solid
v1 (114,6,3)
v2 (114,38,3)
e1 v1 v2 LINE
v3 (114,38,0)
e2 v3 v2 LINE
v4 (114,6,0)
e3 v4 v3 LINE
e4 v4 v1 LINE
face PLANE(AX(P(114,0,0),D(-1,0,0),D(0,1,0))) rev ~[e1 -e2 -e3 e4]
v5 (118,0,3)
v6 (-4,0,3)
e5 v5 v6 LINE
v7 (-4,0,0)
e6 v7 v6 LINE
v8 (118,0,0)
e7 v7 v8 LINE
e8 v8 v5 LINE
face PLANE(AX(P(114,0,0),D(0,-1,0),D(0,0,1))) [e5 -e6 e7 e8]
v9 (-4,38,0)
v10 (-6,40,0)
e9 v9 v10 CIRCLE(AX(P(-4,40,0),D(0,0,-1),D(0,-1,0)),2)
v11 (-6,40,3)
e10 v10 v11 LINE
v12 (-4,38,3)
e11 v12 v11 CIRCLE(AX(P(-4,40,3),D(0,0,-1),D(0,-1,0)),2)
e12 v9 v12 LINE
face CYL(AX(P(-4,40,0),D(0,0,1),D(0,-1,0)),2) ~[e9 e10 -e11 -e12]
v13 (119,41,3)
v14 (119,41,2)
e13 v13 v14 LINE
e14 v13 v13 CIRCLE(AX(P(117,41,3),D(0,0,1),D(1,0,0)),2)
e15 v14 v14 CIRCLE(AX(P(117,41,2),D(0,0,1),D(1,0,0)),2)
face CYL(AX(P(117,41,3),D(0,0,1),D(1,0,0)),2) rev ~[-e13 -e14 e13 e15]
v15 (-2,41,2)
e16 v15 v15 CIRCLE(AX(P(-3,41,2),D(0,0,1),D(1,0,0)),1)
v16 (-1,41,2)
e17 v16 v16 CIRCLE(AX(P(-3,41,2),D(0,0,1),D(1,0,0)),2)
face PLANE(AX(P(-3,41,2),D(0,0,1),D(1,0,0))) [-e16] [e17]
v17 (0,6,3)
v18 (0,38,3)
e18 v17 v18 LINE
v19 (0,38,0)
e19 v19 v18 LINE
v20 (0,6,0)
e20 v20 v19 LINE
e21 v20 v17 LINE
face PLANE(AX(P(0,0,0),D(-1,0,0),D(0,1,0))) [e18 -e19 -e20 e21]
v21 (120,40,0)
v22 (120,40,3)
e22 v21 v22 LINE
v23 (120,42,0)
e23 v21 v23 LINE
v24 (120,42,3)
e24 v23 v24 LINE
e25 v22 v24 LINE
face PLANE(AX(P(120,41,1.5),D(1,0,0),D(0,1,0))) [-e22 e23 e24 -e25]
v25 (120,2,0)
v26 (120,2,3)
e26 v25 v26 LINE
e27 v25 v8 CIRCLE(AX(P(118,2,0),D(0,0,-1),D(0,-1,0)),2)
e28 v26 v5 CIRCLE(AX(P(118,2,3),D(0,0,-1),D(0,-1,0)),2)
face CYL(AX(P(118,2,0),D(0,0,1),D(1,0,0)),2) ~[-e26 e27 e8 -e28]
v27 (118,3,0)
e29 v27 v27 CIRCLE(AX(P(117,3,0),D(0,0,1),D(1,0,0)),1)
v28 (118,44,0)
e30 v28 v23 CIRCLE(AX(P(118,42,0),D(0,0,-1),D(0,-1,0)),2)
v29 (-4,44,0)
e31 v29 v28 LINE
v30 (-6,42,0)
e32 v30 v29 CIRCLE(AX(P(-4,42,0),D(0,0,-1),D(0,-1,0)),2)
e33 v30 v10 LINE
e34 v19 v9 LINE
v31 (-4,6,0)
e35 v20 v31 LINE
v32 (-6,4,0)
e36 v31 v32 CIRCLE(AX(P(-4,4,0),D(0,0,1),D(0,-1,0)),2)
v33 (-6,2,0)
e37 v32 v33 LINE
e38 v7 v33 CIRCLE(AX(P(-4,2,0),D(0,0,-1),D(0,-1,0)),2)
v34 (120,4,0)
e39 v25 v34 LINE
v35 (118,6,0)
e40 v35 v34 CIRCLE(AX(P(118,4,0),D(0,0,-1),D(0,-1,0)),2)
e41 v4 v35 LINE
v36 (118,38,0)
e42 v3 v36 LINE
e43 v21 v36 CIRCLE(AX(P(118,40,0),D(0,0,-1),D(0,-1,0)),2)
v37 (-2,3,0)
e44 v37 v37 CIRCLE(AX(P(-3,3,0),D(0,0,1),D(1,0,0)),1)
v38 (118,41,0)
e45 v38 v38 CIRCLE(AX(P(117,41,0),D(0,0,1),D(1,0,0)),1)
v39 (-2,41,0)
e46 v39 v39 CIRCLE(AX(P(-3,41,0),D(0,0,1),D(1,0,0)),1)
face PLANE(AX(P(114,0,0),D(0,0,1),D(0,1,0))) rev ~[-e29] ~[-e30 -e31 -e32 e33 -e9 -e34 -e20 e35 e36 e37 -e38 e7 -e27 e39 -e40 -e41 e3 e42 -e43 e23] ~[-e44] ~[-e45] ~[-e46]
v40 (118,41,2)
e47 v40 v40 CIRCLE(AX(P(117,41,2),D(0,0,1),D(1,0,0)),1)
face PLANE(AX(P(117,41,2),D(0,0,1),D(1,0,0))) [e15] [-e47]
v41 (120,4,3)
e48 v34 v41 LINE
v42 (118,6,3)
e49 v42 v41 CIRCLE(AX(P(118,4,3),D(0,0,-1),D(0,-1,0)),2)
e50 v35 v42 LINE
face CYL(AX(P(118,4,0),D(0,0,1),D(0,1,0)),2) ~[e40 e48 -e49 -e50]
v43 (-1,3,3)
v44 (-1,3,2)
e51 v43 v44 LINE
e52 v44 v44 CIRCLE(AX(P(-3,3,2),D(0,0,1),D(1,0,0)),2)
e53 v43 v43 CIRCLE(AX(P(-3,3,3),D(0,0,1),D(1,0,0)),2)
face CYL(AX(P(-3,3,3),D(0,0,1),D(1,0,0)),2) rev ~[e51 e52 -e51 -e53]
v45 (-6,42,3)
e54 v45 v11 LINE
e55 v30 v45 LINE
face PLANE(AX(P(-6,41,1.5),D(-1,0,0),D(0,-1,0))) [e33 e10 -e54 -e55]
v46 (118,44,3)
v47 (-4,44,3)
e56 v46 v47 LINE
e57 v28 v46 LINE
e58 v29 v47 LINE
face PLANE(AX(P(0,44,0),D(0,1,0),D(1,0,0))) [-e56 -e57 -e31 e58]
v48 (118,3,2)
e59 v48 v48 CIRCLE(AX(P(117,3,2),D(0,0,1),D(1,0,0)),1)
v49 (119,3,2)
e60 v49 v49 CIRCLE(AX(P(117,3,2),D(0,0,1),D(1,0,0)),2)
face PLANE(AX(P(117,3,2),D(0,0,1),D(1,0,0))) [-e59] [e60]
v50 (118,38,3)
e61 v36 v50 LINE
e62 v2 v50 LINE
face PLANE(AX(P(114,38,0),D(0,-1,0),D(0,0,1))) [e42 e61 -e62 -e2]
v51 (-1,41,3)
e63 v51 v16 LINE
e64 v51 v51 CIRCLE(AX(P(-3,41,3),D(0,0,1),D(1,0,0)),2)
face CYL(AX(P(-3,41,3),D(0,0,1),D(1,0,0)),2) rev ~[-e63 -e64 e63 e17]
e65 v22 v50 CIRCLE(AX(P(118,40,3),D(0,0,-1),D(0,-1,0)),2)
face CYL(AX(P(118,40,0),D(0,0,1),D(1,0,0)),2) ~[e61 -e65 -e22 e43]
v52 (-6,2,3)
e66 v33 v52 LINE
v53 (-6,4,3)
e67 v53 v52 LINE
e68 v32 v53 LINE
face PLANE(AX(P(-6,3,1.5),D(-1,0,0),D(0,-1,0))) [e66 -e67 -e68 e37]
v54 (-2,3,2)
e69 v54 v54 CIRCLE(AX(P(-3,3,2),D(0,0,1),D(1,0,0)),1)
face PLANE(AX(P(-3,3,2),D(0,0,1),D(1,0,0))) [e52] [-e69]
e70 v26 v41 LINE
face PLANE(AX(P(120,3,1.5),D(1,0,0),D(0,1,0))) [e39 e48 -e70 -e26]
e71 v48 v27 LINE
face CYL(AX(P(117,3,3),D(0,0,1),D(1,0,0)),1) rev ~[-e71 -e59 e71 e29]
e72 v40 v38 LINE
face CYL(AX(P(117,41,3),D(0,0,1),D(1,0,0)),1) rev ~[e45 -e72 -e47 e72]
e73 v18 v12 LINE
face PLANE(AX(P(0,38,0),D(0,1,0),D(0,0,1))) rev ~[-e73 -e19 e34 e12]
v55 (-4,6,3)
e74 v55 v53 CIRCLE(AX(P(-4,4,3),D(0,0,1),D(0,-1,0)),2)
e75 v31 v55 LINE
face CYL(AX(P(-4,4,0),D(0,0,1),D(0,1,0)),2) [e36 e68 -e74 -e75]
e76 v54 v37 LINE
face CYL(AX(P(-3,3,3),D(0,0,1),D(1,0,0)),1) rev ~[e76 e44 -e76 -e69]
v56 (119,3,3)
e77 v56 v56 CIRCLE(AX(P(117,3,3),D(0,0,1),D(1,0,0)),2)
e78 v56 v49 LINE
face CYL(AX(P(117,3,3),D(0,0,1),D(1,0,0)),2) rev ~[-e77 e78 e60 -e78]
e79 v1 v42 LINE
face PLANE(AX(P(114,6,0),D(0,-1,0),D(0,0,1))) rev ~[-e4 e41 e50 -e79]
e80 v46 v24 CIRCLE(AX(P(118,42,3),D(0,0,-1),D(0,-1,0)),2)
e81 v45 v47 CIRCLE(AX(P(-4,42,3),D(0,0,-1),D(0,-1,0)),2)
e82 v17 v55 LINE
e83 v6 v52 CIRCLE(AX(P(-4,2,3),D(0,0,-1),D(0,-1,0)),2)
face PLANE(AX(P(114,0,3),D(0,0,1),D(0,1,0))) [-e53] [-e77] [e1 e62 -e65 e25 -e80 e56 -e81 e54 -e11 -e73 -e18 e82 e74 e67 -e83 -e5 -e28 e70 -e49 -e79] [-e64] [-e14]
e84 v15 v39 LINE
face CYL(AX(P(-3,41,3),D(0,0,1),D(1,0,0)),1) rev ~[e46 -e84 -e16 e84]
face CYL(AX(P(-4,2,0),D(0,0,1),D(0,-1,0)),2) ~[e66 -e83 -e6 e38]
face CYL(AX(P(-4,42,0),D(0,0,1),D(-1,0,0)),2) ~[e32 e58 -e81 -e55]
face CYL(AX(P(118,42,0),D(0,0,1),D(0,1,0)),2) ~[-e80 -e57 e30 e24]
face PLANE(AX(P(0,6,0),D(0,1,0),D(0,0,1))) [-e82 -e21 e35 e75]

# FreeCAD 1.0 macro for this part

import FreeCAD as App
import Part
import Sketcher
from FreeCAD import Vector


def edges_at(feature, points):
    """Names of the edges that pass closest to the given points."""
    edges = feature.Shape.Edges
    near = lambda p: min(range(len(edges)), key=lambda i: edges[i].distToShape(Part.Vertex(*p))[0])
    return sorted({f"Edge{near(p) + 1}" for p in points})

doc = App.newDocument("Part")
body = doc.addObject("PartDesign::Body", "Body")

# Sketch on XY plane
sketch1 = body.newObject("Sketcher::SketchObject", "Sketch")
sketch1.AttachmentSupport = (doc.getObject("XY_Plane"), [""])
sketch1.MapMode = "FlatFace"
sketch1.addGeometry(Part.LineSegment(Vector(0, 44, 0), Vector(0, 0, 0)), False)
sketch1.addGeometry(Part.LineSegment(Vector(0, 0, 0), Vector(114, 0, 0)), False)
sketch1.addGeometry(Part.LineSegment(Vector(114, 0, 0), Vector(114, 44, 0)), False)
sketch1.addGeometry(Part.LineSegment(Vector(114, 44, 0), Vector(0, 44, 0)), False)
sketch1.addConstraint(Sketcher.Constraint("Coincident", 0, 2, 1, 1))
sketch1.addConstraint(Sketcher.Constraint("Coincident", 1, 2, 2, 1))
sketch1.addConstraint(Sketcher.Constraint("Coincident", 2, 2, 3, 1))
sketch1.addConstraint(Sketcher.Constraint("Coincident", 3, 2, 0, 1))
sketch1.addConstraint(Sketcher.Constraint("Vertical", 0))
sketch1.addConstraint(Sketcher.Constraint("Horizontal", 1))
sketch1.addConstraint(Sketcher.Constraint("Vertical", 2))
sketch1.addConstraint(Sketcher.Constraint("Horizontal", 3))
sketch1.addConstraint(Sketcher.Constraint("Coincident", 0, 2, -1, 1))
sketch1.addConstraint(Sketcher.Constraint("DistanceX", 1, 1, 1, 2, 114.0))
sketch1.addConstraint(Sketcher.Constraint("DistanceY", 0, 2, 0, 1, 44.0))
pad1 = body.newObject("PartDesign::Pad", "Pad")
pad1.Profile = sketch1
pad1.Length = 3

# Sketch on YZ plane
sketch2 = body.newObject("Sketcher::SketchObject", "Sketch001")
sketch2.AttachmentSupport = (doc.getObject("YZ_Plane"), [""])
sketch2.MapMode = "FlatFace"
sketch2.addGeometry(Part.LineSegment(Vector(6, 3, 0), Vector(6, 0, 0)), False)
sketch2.addGeometry(Part.LineSegment(Vector(6, 0, 0), Vector(0, 0, 0)), False)
sketch2.addGeometry(Part.LineSegment(Vector(0, 0, 0), Vector(0, 3, 0)), False)
sketch2.addGeometry(Part.LineSegment(Vector(0, 3, 0), Vector(6, 3, 0)), False)
sketch2.addGeometry(Part.LineSegment(Vector(44, 3, 0), Vector(44, 0, 0)), False)
sketch2.addGeometry(Part.LineSegment(Vector(44, 0, 0), Vector(38, 0, 0)), False)
sketch2.addGeometry(Part.LineSegment(Vector(38, 0, 0), Vector(38, 3, 0)), False)
sketch2.addGeometry(Part.LineSegment(Vector(38, 3, 0), Vector(44, 3, 0)), False)
sketch2.addConstraint(Sketcher.Constraint("Coincident", 0, 2, 1, 1))
sketch2.addConstraint(Sketcher.Constraint("Coincident", 1, 2, 2, 1))
sketch2.addConstraint(Sketcher.Constraint("Coincident", 2, 2, 3, 1))
sketch2.addConstraint(Sketcher.Constraint("Coincident", 3, 2, 0, 1))
sketch2.addConstraint(Sketcher.Constraint("Coincident", 4, 2, 5, 1))
sketch2.addConstraint(Sketcher.Constraint("Coincident", 5, 2, 6, 1))
sketch2.addConstraint(Sketcher.Constraint("Coincident", 6, 2, 7, 1))
sketch2.addConstraint(Sketcher.Constraint("Coincident", 7, 2, 4, 1))
sketch2.addConstraint(Sketcher.Constraint("Vertical", 0))
sketch2.addConstraint(Sketcher.Constraint("Horizontal", 1))
sketch2.addConstraint(Sketcher.Constraint("Vertical", 2))
sketch2.addConstraint(Sketcher.Constraint("Horizontal", 3))
sketch2.addConstraint(Sketcher.Constraint("Vertical", 4))
sketch2.addConstraint(Sketcher.Constraint("Horizontal", 5))
sketch2.addConstraint(Sketcher.Constraint("Vertical", 6))
sketch2.addConstraint(Sketcher.Constraint("Horizontal", 7))
sketch2.addConstraint(Sketcher.Constraint("Coincident", 1, 2, -1, 1))
sketch2.addConstraint(Sketcher.Constraint("PointOnObject", 4, 2, -1))
sketch2.addConstraint(Sketcher.Constraint("Horizontal", 3, 2, 6, 2))
sketch2.addConstraint(Sketcher.Constraint("Equal", 3, 5))
sketch2.addConstraint(Sketcher.Constraint("DistanceX", 1, 2, 1, 1, 6.0))
sketch2.addConstraint(Sketcher.Constraint("DistanceY", 0, 2, 0, 1, 3.0))
sketch2.addConstraint(Sketcher.Constraint("DistanceX", -1, 1, 4, 2, 44.0))
pad2 = body.newObject("PartDesign::Pad", "Pad001")
pad2.Profile = sketch2
pad2.Length = 6
pad2.Reversed = True

# Sketch on YZ plane
sketch3 = body.newObject("Sketcher::SketchObject", "Sketch002")
sketch3.AttachmentSupport = (doc.getObject("YZ_Plane"), [""])
sketch3.MapMode = "FlatFace"
sketch3.AttachmentOffset = App.Placement(Vector(0, 0, 114), App.Rotation())
sketch3.addGeometry(Part.LineSegment(Vector(0, 3, 0), Vector(0, 0, 0)), False)
sketch3.addGeometry(Part.LineSegment(Vector(0, 0, 0), Vector(6, 0, 0)), False)
sketch3.addGeometry(Part.LineSegment(Vector(6, 0, 0), Vector(6, 3, 0)), False)
sketch3.addGeometry(Part.LineSegment(Vector(6, 3, 0), Vector(0, 3, 0)), False)
sketch3.addGeometry(Part.LineSegment(Vector(38, 3, 0), Vector(38, 0, 0)), False)
sketch3.addGeometry(Part.LineSegment(Vector(38, 0, 0), Vector(44, 0, 0)), False)
sketch3.addGeometry(Part.LineSegment(Vector(44, 0, 0), Vector(44, 3, 0)), False)
sketch3.addGeometry(Part.LineSegment(Vector(44, 3, 0), Vector(38, 3, 0)), False)
sketch3.addConstraint(Sketcher.Constraint("Coincident", 0, 2, 1, 1))
sketch3.addConstraint(Sketcher.Constraint("Coincident", 1, 2, 2, 1))
sketch3.addConstraint(Sketcher.Constraint("Coincident", 2, 2, 3, 1))
sketch3.addConstraint(Sketcher.Constraint("Coincident", 3, 2, 0, 1))
sketch3.addConstraint(Sketcher.Constraint("Coincident", 4, 2, 5, 1))
sketch3.addConstraint(Sketcher.Constraint("Coincident", 5, 2, 6, 1))
sketch3.addConstraint(Sketcher.Constraint("Coincident", 6, 2, 7, 1))
sketch3.addConstraint(Sketcher.Constraint("Coincident", 7, 2, 4, 1))
sketch3.addConstraint(Sketcher.Constraint("Vertical", 0))
sketch3.addConstraint(Sketcher.Constraint("Horizontal", 1))
sketch3.addConstraint(Sketcher.Constraint("Vertical", 2))
sketch3.addConstraint(Sketcher.Constraint("Horizontal", 3))
sketch3.addConstraint(Sketcher.Constraint("Vertical", 4))
sketch3.addConstraint(Sketcher.Constraint("Horizontal", 5))
sketch3.addConstraint(Sketcher.Constraint("Vertical", 6))
sketch3.addConstraint(Sketcher.Constraint("Horizontal", 7))
sketch3.addConstraint(Sketcher.Constraint("Coincident", 0, 2, -1, 1))
sketch3.addConstraint(Sketcher.Constraint("PointOnObject", 4, 2, -1))
sketch3.addConstraint(Sketcher.Constraint("Horizontal", 3, 2, 6, 2))
sketch3.addConstraint(Sketcher.Constraint("Equal", 3, 5))
sketch3.addConstraint(Sketcher.Constraint("DistanceX", 1, 1, 1, 2, 6.0))
sketch3.addConstraint(Sketcher.Constraint("DistanceY", 0, 2, 0, 1, 3.0))
sketch3.addConstraint(Sketcher.Constraint("DistanceX", -1, 1, 4, 2, 38.0))
pad3 = body.newObject("PartDesign::Pad", "Pad002")
pad3.Profile = sketch3
pad3.Length = 6

# Sketch on XY plane
sketch4 = body.newObject("Sketcher::SketchObject", "Sketch003")
sketch4.AttachmentSupport = (doc.getObject("XY_Plane"), [""])
sketch4.MapMode = "FlatFace"
sketch4.AttachmentOffset = App.Placement(Vector(0, 0, 3), App.Rotation())
sketch4.addGeometry(Part.Circle(Vector(-3, 3, 0), Vector(0, 0, 1), 1), False)
sketch4.addGeometry(Part.Circle(Vector(-3, 41, 0), Vector(0, 0, 1), 1), False)
sketch4.addGeometry(Part.Circle(Vector(117, 41, 0), Vector(0, 0, 1), 1), False)
sketch4.addGeometry(Part.Circle(Vector(117, 3, 0), Vector(0, 0, 1), 1), False)
sketch4.addConstraint(Sketcher.Constraint("Equal", 0, 1))
sketch4.addConstraint(Sketcher.Constraint("Equal", 1, 2))
sketch4.addConstraint(Sketcher.Constraint("Equal", 2, 3))
sketch4.addConstraint(Sketcher.Constraint("Horizontal", 1, 3, 2, 3))
sketch4.addConstraint(Sketcher.Constraint("Horizontal", 0, 3, 3, 3))
sketch4.addConstraint(Sketcher.Constraint("Vertical", 0, 3, 1, 3))
sketch4.addConstraint(Sketcher.Constraint("Vertical", 2, 3, 3, 3))
sketch4.addConstraint(Sketcher.Constraint("Diameter", 0, 2.0))
sketch4.addConstraint(Sketcher.Constraint("DistanceX", 0, 3, -1, 1, 3.0))
sketch4.addConstraint(Sketcher.Constraint("DistanceY", -1, 1, 0, 3, 3.0))
sketch4.addConstraint(Sketcher.Constraint("DistanceY", -1, 1, 1, 3, 41.0))
sketch4.addConstraint(Sketcher.Constraint("DistanceX", -1, 1, 2, 3, 117.0))
pocket1 = body.newObject("PartDesign::Pocket", "Pocket")
pocket1.Profile = sketch4
pocket1.Length = 5

# Sketch on XY plane
sketch5 = body.newObject("Sketcher::SketchObject", "Sketch004")
sketch5.AttachmentSupport = (doc.getObject("XY_Plane"), [""])
sketch5.MapMode = "FlatFace"
sketch5.AttachmentOffset = App.Placement(Vector(0, 0, 3), App.Rotation())
sketch5.addGeometry(Part.Circle(Vector(-3, 41, 0), Vector(0, 0, 1), 2), False)
sketch5.addGeometry(Part.Circle(Vector(-3, 3, 0), Vector(0, 0, 1), 2), False)
sketch5.addGeometry(Part.Circle(Vector(117, 41, 0), Vector(0, 0, 1), 2), False)
sketch5.addGeometry(Part.Circle(Vector(117, 3, 0), Vector(0, 0, 1), 2), False)
sketch5.addConstraint(Sketcher.Constraint("Equal", 0, 1))
sketch5.addConstraint(Sketcher.Constraint("Equal", 1, 2))
sketch5.addConstraint(Sketcher.Constraint("Equal", 2, 3))
sketch5.addConstraint(Sketcher.Constraint("Horizontal", 0, 3, 2, 3))
sketch5.addConstraint(Sketcher.Constraint("Horizontal", 1, 3, 3, 3))
sketch5.addConstraint(Sketcher.Constraint("Vertical", 0, 3, 1, 3))
sketch5.addConstraint(Sketcher.Constraint("Vertical", 2, 3, 3, 3))
sketch5.addConstraint(Sketcher.Constraint("Diameter", 0, 4.0))
sketch5.addConstraint(Sketcher.Constraint("DistanceX", 0, 3, -1, 1, 3.0))
sketch5.addConstraint(Sketcher.Constraint("DistanceY", -1, 1, 0, 3, 41.0))
sketch5.addConstraint(Sketcher.Constraint("DistanceY", -1, 1, 1, 3, 3.0))
sketch5.addConstraint(Sketcher.Constraint("DistanceX", -1, 1, 2, 3, 117.0))
pocket2 = body.newObject("PartDesign::Pocket", "Pocket001")
pocket2.Profile = sketch5
pocket2.Length = 1
doc.recompute()

fillet = body.newObject("PartDesign::Fillet", "Fillet")
fillet.Base = (pocket2, edges_at(pocket2, [(-6, 0, 1.5)]))
fillet.Radius = 2
doc.recompute()

fillet2 = body.newObject("PartDesign::Fillet", "Fillet001")
fillet2.Base = (fillet, edges_at(fillet, [(-6, 38, 1.5)]))
fillet2.Radius = 2
doc.recompute()

fillet3 = body.newObject("PartDesign::Fillet", "Fillet002")
fillet3.Base = (fillet2, edges_at(fillet2, [(-6, 44, 1.5)]))
fillet3.Radius = 2
doc.recompute()

fillet4 = body.newObject("PartDesign::Fillet", "Fillet003")
fillet4.Base = (fillet3, edges_at(fillet3, [(-6, 6, 1.5)]))
fillet4.Radius = 2
doc.recompute()

fillet5 = body.newObject("PartDesign::Fillet", "Fillet004")
fillet5.Base = (fillet4, edges_at(fillet4, [(120, 44, 1.5)]))
fillet5.Radius = 2
doc.recompute()

fillet6 = body.newObject("PartDesign::Fillet", "Fillet005")
fillet6.Base = (fillet5, edges_at(fillet5, [(120, 38, 1.5)]))
fillet6.Radius = 2
doc.recompute()

fillet7 = body.newObject("PartDesign::Fillet", "Fillet006")
fillet7.Base = (fillet6, edges_at(fillet6, [(120, 6, 1.5)]))
fillet7.Radius = 2
doc.recompute()

fillet8 = body.newObject("PartDesign::Fillet", "Fillet007")
fillet8.Base = (fillet7, edges_at(fillet7, [(120, 0, 1.5)]))
fillet8.Radius = 2

doc.recompute()
